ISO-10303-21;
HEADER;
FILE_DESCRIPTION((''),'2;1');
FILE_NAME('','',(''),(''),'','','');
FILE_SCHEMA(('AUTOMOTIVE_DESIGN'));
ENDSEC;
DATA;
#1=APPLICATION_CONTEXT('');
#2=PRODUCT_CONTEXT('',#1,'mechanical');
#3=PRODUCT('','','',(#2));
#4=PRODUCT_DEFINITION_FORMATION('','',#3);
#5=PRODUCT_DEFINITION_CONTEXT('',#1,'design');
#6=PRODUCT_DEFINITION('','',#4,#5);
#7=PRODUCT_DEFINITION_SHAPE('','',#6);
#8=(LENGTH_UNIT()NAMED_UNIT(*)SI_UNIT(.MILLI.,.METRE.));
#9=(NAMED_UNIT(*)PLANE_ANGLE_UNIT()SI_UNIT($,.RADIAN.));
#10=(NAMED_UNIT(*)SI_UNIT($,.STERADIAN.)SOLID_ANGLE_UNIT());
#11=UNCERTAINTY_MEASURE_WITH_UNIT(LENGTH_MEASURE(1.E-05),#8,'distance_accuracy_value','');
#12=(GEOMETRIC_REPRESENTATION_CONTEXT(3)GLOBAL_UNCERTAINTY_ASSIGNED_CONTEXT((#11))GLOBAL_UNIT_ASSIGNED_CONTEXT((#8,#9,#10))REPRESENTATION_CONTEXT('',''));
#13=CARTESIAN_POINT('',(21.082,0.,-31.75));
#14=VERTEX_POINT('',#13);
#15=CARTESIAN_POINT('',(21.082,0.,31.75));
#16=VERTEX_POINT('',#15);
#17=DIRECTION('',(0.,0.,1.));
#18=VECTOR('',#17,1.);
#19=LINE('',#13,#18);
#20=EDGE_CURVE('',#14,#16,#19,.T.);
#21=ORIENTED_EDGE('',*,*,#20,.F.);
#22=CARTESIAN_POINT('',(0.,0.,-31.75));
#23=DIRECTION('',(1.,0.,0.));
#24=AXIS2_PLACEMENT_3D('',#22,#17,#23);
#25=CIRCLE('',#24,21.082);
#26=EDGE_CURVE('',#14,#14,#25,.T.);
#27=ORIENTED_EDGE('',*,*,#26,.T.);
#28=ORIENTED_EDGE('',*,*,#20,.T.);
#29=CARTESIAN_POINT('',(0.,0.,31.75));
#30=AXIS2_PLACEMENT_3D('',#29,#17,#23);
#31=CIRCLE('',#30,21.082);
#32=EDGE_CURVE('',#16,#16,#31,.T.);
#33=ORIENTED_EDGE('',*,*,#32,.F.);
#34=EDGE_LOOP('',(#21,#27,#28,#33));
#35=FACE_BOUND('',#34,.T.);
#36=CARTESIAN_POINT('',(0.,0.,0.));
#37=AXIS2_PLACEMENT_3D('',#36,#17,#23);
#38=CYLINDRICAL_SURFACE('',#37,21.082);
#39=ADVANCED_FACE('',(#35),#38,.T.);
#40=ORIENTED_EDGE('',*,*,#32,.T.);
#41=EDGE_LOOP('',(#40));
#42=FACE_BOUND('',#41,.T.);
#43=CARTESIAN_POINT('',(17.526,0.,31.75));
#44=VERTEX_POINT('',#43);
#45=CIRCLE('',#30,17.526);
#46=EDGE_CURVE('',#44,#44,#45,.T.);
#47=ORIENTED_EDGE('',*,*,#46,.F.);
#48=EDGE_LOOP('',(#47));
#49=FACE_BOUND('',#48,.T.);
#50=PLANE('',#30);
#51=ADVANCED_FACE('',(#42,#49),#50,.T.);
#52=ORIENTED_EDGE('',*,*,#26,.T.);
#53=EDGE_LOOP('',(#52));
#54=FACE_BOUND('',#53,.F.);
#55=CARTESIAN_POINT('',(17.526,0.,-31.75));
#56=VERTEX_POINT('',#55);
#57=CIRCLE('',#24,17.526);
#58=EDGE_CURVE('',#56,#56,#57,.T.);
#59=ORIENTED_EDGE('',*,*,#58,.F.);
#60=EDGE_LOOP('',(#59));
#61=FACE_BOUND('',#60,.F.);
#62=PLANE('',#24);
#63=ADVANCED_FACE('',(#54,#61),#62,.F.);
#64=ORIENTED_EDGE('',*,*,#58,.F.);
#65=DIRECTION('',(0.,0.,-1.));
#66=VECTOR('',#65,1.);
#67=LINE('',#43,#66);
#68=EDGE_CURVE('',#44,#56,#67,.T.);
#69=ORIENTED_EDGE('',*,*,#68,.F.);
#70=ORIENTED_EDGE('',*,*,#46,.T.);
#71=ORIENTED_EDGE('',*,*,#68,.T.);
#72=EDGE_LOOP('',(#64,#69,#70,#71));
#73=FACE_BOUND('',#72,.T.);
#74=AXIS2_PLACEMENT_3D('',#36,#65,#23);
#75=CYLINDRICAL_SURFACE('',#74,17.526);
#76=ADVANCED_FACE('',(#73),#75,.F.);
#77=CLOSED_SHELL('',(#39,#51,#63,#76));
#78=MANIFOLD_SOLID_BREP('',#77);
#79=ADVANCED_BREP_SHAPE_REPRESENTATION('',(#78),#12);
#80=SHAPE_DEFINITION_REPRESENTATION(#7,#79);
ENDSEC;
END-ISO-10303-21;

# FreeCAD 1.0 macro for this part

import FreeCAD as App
import Part
import Sketcher
from FreeCAD import Vector
Q = App.Units.Quantity

doc = App.newDocument("Part")
body = doc.addObject("PartDesign::Body", "Body")

# Sketch on XY plane
sketch1 = body.newObject("Sketcher::SketchObject", "Sketch")
sketch1.AttachmentSupport = (doc.getObject("XY_Plane"), [""])
sketch1.MapMode = "FlatFace"
sketch1.addGeometry([
    Part.Circle(Vector(0, 0, 0), Vector(0, 0, 1), 21),
    Part.Circle(Vector(0, 0, 0), Vector(0, 0, 1), 18),
], False)
sketch1.addConstraint([
    Sketcher.Constraint("Coincident", 0, 3, -1, 1),
    Sketcher.Constraint("Coincident", 1, 3, -1, 1),
    Sketcher.Constraint("Diameter", 0, Q("1.66 in")),
    Sketcher.Constraint("Diameter", 1, Q("1.38 in")),
])
pad1 = body.newObject("PartDesign::Pad", "Pad")
pad1.Profile = sketch1
pad1.Length = Q("2.5 in")
pad1.Midplane = True

doc.recompute()
